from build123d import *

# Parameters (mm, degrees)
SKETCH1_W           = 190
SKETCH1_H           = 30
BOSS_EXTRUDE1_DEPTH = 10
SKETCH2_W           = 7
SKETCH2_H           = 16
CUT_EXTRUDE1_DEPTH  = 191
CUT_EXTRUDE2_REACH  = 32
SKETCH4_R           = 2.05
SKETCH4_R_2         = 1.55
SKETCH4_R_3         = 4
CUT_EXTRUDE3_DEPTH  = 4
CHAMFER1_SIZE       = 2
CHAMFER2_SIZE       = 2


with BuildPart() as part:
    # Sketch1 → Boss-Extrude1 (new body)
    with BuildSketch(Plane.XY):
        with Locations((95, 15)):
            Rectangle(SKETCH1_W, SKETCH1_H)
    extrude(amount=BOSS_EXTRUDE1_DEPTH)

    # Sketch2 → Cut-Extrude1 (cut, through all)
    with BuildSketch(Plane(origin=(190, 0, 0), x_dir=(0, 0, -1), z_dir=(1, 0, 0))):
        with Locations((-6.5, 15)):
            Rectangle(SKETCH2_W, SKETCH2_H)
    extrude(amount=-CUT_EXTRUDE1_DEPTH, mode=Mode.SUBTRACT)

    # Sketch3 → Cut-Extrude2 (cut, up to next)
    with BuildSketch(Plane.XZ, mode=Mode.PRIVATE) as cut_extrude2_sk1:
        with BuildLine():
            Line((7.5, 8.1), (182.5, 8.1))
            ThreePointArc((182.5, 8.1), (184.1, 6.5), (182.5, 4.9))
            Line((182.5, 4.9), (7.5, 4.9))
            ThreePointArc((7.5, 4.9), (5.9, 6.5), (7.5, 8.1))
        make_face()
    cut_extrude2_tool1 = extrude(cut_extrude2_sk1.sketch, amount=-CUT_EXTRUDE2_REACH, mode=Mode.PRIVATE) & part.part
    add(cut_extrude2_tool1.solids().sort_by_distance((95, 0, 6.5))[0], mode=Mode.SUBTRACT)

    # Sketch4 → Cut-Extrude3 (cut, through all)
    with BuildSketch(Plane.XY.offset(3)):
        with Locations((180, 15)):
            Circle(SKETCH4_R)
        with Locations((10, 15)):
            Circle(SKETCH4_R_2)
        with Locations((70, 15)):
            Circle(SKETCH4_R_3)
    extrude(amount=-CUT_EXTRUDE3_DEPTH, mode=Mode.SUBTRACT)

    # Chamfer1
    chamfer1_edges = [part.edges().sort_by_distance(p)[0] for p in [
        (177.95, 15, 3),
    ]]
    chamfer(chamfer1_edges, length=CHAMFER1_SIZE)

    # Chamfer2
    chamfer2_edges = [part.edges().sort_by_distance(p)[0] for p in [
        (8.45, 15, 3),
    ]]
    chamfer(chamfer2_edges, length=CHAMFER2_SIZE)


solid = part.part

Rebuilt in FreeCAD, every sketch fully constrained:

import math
import FreeCAD as App
import Part
import Sketcher

V = App.Vector
Q = App.Units.Quantity


def edges_at(feature, points):
    """Names of the edges that pass closest to the given points."""
    edges = feature.Shape.Edges
    near = lambda p: min(range(len(edges)), key=lambda i: edges[i].distToShape(Part.Vertex(*p))[0])
    return sorted({f"Edge{near(p) + 1}" for p in points})


def add_polygon(sketch, points):
    """Adds a closed chain of lines whose ends are joined by coincident constraints."""
    first, n = sketch.GeometryCount, len(points)
    for a, b in zip(points, points[1:] + points[:1]):
        sketch.addGeometry(Part.LineSegment(App.Vector(*a, 0), App.Vector(*b, 0)), False)
    for i in range(n):
        sketch.addConstraint(Sketcher.Constraint("Coincident", first + i, 2, first + (i + 1) % n, 1))

doc = App.newDocument("Part")
params = doc.addObject("Spreadsheet::Sheet", "Params")
for row, (alias, value) in enumerate([
    ("sketch1_width", "190 mm"),
    ("sketch1_height", "30 mm"),
    ("pad1_length", "10 mm"),
    ("sketch2_width", "16 mm"),
    ("sketch2_height", "7 mm"),
    ("sketch3_radius", "1.6 mm"),
    ("sketch3_width", "175 mm"),
    ("sketch4_diameter", "8 mm"),
    ("sketch4_diameter2", "4.1 mm"),
    ("sketch4_diameter3", "3.1 mm"),
    ("chamfer_size", "2 mm"),
    ("chamfer2_size", "2 mm"),
], start=1):
    params.set(f"A{row}", alias)
    params.set(f"B{row}", "=" + value)
    params.setAlias(f"B{row}", alias)

body = doc.addObject("PartDesign::Body", "Body")

# Sketch on XY plane
sketch1 = body.newObject("Sketcher::SketchObject", "Sketch")
sketch1.AttachmentSupport = (doc.getObject("XY_Plane"), [""])
sketch1.MapMode = "FlatFace"
add_polygon(sketch1, [(0, 30), (0, 0), (190, 0), (190, 30)])  # lines 0-3
sketch1.addConstraint([
    Sketcher.Constraint("Vertical", 0),
    Sketcher.Constraint("Horizontal", 1),
    Sketcher.Constraint("Vertical", 2),
    Sketcher.Constraint("Horizontal", 3),
    Sketcher.Constraint("Coincident", 0, 2, -1, 1),
    Sketcher.Constraint("DistanceX", 1, 1, 1, 2, Q("190 mm")),
    Sketcher.Constraint("DistanceY", 0, 2, 0, 1, Q("30 mm")),
])
sketch1.setExpression("Constraints[9]", "Params.sketch1_width")
sketch1.setExpression("Constraints[10]", "Params.sketch1_height")
pad1 = body.newObject("PartDesign::Pad", "Pad")
pad1.Profile = sketch1
pad1.setExpression("Length", "Params.pad1_length")

# Sketch on YZ plane
sketch2 = body.newObject("Sketcher::SketchObject", "Sketch001")
sketch2.AttachmentSupport = (doc.getObject("YZ_Plane"), [""])
sketch2.MapMode = "FlatFace"
sketch2.AttachmentOffset = App.Placement(V(0, 0, 190), App.Rotation())
add_polygon(sketch2, [(23, 10), (7, 10), (7, 3), (23, 3)])  # lines 0-3
sketch2.addConstraint([
    Sketcher.Constraint("Horizontal", 0),
    Sketcher.Constraint("Vertical", 1),
    Sketcher.Constraint("Horizontal", 2),
    Sketcher.Constraint("Vertical", 3),
    Sketcher.Constraint("DistanceX", 0, 2, 0, 1, Q("16 mm")),
    Sketcher.Constraint("DistanceY", 1, 2, 1, 1, Q("7 mm")),
    Sketcher.Constraint("DistanceX", -1, 1, 0, 2, Q("7 mm")),
    Sketcher.Constraint("DistanceY", -1, 1, 0, 2, Q("10 mm")),
])
sketch2.setExpression("Constraints[8]", "Params.sketch2_width")
sketch2.setExpression("Constraints[9]", "Params.sketch2_height")
pocket1 = body.newObject("PartDesign::Pocket", "Pocket")
pocket1.Profile = sketch2
pocket1.Type = "ThroughAll"

# Sketch on XZ plane
sketch3 = body.newObject("Sketcher::SketchObject", "Sketch002")
sketch3.AttachmentSupport = (doc.getObject("XZ_Plane"), [""])
sketch3.MapMode = "FlatFace"
sketch3.addGeometry([
    Part.LineSegment(V(182.5, 8.1, 0), V(7.5, 8.1, 0)),
    Part.ArcOfCircle(Part.Circle(V(7.5, 6.5, 0), V(0, 0, 1), 1.6), math.radians(90), math.radians(270)),
    Part.LineSegment(V(7.5, 4.9, 0), V(182.5, 4.9, 0)),
    Part.ArcOfCircle(Part.Circle(V(182.5, 6.5, 0), V(0, 0, 1), 1.6), math.radians(-90), math.radians(90)),
], False)
sketch3.addConstraint([
    Sketcher.Constraint("Tangent", 0, 2, 1, 1),
    Sketcher.Constraint("Tangent", 1, 2, 2, 1),
    Sketcher.Constraint("Tangent", 2, 2, 3, 1),
    Sketcher.Constraint("Tangent", 3, 2, 0, 1),
    Sketcher.Constraint("Horizontal", 0),
    Sketcher.Constraint("Horizontal", 2),
    Sketcher.Constraint("Radius", 1, Q("1.6 mm")),
    Sketcher.Constraint("DistanceX", 0, 2, 0, 1, Q("175 mm")),
    Sketcher.Constraint("DistanceX", -1, 1, 1, 3, Q("7.5 mm")),
    Sketcher.Constraint("DistanceY", -1, 1, 1, 3, Q("6.5 mm")),
])
sketch3.setExpression("Constraints[6]", "Params.sketch3_radius")
sketch3.setExpression("Constraints[7]", "Params.sketch3_width")
pocket2 = body.newObject("PartDesign::Pocket", "Pocket001")
pocket2.Profile = sketch3
pocket2.Type = "UpToFirst"

# Sketch on XY plane
sketch4 = body.newObject("Sketcher::SketchObject", "Sketch003")
sketch4.AttachmentSupport = (doc.getObject("XY_Plane"), [""])
sketch4.MapMode = "FlatFace"
sketch4.AttachmentOffset = App.Placement(V(0, 0, 3), App.Rotation())
sketch4.addGeometry([
    Part.Circle(V(180, 15, 0), V(0, 0, 1), 2.05),
    Part.Circle(V(10, 15, 0), V(0, 0, 1), 1.55),
    Part.Circle(V(70, 15, 0), V(0, 0, 1), 4),
], False)
sketch4.addConstraint([
    Sketcher.Constraint("Horizontal", 0, 3, 1, 3),
    Sketcher.Constraint("Horizontal", 1, 3, 2, 3),
    Sketcher.Constraint("Diameter", 2, Q("8 mm")),
    Sketcher.Constraint("Diameter", 0, Q("4.1 mm")),
    Sketcher.Constraint("Diameter", 1, Q("3.1 mm")),
    Sketcher.Constraint("DistanceX", -1, 1, 0, 3, Q("180 mm")),
    Sketcher.Constraint("DistanceY", -1, 1, 0, 3, Q("15 mm")),
    Sketcher.Constraint("DistanceX", -1, 1, 1, 3, Q("10 mm")),
    Sketcher.Constraint("DistanceX", -1, 1, 2, 3, Q("70 mm")),
])
sketch4.setExpression("Constraints[2]", "Params.sketch4_diameter")
sketch4.setExpression("Constraints[3]", "Params.sketch4_diameter2")
sketch4.setExpression("Constraints[4]", "Params.sketch4_diameter3")
pocket3 = body.newObject("PartDesign::Pocket", "Pocket002")
pocket3.Profile = sketch4
pocket3.Type = "ThroughAll"
doc.recompute()

chamfer = body.newObject("PartDesign::Chamfer", "Chamfer")
chamfer.Base = (pocket3, edges_at(pocket3, [(177.95, 15, 3)]))
chamfer.setExpression("Size", "Params.chamfer_size")
doc.recompute()

chamfer2 = body.newObject("PartDesign::Chamfer", "Chamfer001")
chamfer2.Base = (chamfer, edges_at(chamfer, [(8.45, 15, 3)]))
chamfer2.setExpression("Size", "Params.chamfer2_size")

doc.recompute()
